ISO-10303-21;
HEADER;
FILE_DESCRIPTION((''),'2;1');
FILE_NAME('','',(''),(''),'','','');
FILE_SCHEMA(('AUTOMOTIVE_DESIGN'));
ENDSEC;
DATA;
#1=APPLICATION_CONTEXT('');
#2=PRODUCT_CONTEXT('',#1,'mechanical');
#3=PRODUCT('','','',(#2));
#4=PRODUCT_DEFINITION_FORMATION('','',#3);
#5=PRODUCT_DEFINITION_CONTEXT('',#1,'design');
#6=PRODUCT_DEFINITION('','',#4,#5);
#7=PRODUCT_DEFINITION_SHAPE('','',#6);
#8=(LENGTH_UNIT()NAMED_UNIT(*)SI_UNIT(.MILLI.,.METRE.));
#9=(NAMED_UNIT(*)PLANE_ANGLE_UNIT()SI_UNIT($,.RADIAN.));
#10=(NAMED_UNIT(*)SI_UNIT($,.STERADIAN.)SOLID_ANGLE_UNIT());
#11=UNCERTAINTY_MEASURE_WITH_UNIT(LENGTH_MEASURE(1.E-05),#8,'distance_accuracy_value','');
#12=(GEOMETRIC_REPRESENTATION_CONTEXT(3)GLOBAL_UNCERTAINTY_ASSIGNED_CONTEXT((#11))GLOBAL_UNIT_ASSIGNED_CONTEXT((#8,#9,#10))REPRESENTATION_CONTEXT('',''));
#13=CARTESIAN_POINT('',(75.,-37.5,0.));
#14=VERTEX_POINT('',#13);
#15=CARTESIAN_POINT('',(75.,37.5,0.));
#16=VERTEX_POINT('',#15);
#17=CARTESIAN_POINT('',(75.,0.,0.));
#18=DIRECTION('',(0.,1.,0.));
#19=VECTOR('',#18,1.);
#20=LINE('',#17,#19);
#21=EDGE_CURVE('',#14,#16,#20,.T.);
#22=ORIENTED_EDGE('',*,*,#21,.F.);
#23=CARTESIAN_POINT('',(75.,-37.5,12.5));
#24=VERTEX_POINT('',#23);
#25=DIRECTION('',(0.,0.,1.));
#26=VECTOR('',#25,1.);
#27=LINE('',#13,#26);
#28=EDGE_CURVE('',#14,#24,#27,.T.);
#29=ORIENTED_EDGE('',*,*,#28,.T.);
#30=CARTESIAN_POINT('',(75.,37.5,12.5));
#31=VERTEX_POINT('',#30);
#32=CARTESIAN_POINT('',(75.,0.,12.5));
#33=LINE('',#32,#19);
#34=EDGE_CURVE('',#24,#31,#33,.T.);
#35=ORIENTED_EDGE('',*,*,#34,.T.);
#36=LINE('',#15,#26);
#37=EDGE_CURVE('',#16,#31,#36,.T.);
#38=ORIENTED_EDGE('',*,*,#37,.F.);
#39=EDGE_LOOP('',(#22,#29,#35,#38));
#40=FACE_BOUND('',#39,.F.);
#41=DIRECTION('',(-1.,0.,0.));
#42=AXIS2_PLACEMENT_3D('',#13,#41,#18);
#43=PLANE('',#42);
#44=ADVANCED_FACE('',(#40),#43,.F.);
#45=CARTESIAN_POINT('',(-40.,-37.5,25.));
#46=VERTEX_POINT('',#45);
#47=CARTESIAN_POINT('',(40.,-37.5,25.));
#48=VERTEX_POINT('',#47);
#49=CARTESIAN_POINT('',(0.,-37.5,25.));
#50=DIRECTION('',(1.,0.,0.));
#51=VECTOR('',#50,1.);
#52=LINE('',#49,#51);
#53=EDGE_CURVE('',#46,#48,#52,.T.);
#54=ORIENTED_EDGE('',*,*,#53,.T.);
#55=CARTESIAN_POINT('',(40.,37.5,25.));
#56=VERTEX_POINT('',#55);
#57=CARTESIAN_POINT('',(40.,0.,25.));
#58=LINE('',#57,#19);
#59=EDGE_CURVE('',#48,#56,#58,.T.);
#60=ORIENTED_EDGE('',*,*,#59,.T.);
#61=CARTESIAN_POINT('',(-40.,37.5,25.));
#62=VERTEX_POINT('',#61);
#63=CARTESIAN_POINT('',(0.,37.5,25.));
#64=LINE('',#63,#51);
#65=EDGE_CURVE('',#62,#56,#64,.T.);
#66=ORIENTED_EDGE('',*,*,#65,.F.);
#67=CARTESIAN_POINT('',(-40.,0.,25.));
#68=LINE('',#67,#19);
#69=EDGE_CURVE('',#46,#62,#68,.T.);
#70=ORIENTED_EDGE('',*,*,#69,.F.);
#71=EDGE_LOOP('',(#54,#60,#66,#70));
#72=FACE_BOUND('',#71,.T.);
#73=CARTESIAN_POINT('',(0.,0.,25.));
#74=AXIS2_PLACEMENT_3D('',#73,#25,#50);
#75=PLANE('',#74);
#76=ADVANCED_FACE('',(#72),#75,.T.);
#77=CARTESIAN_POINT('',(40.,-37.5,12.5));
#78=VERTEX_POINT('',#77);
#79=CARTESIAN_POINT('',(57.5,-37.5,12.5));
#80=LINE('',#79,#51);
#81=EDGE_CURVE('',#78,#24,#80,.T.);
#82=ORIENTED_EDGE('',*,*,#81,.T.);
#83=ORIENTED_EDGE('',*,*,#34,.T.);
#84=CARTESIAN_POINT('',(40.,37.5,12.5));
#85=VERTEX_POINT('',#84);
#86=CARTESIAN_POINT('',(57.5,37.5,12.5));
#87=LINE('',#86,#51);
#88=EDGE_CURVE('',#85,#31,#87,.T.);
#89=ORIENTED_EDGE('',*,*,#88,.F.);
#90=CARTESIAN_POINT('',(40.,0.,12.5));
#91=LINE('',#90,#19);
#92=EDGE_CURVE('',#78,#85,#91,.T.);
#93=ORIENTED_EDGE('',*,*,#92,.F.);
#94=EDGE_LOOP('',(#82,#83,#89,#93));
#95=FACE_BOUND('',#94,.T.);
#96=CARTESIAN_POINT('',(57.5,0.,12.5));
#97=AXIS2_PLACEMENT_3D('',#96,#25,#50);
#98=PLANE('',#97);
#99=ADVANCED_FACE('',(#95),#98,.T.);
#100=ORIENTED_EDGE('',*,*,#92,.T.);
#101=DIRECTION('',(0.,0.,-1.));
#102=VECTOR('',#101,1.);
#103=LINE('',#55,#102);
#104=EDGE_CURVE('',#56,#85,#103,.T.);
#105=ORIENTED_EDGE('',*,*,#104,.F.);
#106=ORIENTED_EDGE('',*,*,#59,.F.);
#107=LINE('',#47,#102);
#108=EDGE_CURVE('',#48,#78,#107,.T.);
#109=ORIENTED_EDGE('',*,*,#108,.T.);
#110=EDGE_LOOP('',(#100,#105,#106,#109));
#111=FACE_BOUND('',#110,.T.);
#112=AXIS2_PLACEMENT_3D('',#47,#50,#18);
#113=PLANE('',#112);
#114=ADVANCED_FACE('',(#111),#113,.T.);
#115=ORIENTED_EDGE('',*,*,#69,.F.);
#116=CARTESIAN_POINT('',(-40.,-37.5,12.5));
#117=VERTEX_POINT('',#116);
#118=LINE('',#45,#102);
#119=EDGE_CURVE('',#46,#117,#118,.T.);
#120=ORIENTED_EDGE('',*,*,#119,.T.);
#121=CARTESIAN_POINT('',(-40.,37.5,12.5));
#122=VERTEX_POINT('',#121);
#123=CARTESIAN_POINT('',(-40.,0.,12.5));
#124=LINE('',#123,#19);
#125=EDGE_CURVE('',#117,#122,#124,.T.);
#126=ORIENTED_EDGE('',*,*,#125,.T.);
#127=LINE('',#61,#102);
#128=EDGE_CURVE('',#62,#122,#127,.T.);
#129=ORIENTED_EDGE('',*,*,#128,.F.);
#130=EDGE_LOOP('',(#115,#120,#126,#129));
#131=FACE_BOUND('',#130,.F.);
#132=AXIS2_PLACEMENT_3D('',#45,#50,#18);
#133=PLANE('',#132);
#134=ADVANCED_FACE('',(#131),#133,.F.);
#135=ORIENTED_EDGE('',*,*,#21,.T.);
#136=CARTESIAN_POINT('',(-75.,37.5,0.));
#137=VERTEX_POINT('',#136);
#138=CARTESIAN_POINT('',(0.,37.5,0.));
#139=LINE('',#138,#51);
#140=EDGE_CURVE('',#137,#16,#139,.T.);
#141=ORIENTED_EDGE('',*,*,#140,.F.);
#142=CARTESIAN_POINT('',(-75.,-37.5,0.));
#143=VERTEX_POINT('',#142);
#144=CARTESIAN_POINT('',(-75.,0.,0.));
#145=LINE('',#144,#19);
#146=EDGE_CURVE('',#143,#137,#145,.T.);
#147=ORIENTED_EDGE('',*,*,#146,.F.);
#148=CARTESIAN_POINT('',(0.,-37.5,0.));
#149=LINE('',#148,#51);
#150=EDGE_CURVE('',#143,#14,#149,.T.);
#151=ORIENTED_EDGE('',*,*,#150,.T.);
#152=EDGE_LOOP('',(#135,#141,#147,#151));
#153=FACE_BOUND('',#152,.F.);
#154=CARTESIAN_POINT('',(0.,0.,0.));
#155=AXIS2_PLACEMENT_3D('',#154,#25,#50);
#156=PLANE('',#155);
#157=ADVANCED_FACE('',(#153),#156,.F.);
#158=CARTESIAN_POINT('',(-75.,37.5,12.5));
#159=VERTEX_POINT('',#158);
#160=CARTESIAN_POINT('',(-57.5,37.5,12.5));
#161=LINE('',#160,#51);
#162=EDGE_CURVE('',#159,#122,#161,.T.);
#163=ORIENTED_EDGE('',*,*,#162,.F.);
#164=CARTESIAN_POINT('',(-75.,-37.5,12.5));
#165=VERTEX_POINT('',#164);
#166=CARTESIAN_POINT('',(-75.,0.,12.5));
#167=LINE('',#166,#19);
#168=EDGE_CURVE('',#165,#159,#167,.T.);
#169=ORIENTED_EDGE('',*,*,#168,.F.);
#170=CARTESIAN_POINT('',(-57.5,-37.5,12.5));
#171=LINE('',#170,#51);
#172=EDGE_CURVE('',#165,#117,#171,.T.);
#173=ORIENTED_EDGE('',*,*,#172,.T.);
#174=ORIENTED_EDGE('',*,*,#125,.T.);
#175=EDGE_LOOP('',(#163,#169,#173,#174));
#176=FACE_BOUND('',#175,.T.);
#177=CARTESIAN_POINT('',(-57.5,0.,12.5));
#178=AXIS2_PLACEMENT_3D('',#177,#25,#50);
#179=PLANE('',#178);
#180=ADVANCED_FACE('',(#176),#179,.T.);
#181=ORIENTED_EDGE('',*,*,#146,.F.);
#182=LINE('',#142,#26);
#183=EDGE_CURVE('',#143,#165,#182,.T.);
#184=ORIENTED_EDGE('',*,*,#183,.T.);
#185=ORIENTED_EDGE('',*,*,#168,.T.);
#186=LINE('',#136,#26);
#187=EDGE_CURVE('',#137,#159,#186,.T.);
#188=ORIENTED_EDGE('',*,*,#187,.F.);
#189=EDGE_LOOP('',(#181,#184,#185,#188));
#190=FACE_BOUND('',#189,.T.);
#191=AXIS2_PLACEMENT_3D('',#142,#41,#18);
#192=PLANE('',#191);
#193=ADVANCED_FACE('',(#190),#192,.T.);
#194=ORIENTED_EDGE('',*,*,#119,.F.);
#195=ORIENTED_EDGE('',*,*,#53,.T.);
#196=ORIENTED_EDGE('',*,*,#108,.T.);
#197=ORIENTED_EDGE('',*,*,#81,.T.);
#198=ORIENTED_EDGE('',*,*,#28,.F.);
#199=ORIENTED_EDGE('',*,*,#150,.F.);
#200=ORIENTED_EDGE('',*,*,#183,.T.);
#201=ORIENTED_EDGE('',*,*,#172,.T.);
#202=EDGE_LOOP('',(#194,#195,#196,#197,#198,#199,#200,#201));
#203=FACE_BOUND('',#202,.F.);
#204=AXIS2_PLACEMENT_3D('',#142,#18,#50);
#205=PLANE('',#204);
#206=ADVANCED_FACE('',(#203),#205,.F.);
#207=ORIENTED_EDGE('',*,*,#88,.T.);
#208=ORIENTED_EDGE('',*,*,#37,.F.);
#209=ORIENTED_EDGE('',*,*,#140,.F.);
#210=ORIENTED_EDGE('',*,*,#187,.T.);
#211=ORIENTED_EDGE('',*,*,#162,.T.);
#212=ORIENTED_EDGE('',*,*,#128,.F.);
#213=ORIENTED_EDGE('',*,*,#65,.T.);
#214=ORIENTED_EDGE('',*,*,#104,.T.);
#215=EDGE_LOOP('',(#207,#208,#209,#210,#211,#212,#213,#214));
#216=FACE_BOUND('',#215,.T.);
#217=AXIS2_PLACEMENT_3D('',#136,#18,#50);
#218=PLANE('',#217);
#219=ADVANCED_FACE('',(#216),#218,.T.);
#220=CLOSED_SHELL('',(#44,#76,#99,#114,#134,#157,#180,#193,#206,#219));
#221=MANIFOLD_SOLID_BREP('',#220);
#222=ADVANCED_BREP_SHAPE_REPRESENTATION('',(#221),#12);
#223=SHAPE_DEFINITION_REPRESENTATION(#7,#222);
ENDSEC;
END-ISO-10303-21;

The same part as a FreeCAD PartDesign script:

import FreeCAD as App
import Part
import Sketcher

V = App.Vector
Q = App.Units.Quantity


def add_polygon(sketch, points):
    """Adds a closed chain of lines whose ends are joined by coincident constraints."""
    first, n = sketch.GeometryCount, len(points)
    for a, b in zip(points, points[1:] + points[:1]):
        sketch.addGeometry(Part.LineSegment(App.Vector(*a, 0), App.Vector(*b, 0)), False)
    for i in range(n):
        sketch.addConstraint(Sketcher.Constraint("Coincident", first + i, 2, first + (i + 1) % n, 1))

doc = App.newDocument("Part")
body = doc.addObject("PartDesign::Body", "Body")

sketch1 = body.newObject("Sketcher::SketchObject", "Sketch")
sketch1.AttachmentSupport = (doc.getObject("XY_Plane"), [""])
sketch1.MapMode = "FlatFace"
add_polygon(sketch1, [(-75, 37.5), (-75, -37.5), (75, -37.5), (75, 37.5)])
sketch1.addConstraint([
    Sketcher.Constraint("Vertical", 0),
    Sketcher.Constraint("Horizontal", 1),
    Sketcher.Constraint("Vertical", 2),
    Sketcher.Constraint("Horizontal", 3),
    Sketcher.Constraint("Symmetric", 0, 2, 2, 2, -1, 1),
    Sketcher.Constraint("DistanceX", 1, 1, 1, 2, Q("150 mm")),
    Sketcher.Constraint("DistanceY", 0, 2, 0, 1, Q("75 mm")),
])
pad1 = body.newObject("PartDesign::Pad", "Pad")
pad1.Profile = sketch1
pad1.Length = 25

sketch2 = body.newObject("Sketcher::SketchObject", "Sketch001")
sketch2.AttachmentSupport = (doc.getObject("XY_Plane"), [""])
sketch2.MapMode = "FlatFace"
sketch2.AttachmentOffset = App.Placement(V(0, 0, 25), App.Rotation())
add_polygon(sketch2, [(-75, 37.5), (-75, -37.5), (-40, -37.5), (-40, 37.5)])
add_polygon(sketch2, [(40, 37.5), (40, -37.5), (75, -37.5), (75, 37.5)])
sketch2.addConstraint([
    Sketcher.Constraint("Vertical", 0),
    Sketcher.Constraint("Horizontal", 1),
    Sketcher.Constraint("Vertical", 2),
    Sketcher.Constraint("Horizontal", 3),
    Sketcher.Constraint("Vertical", 4),
    Sketcher.Constraint("Horizontal", 5),
    Sketcher.Constraint("Vertical", 6),
    Sketcher.Constraint("Horizontal", 7),
    Sketcher.Constraint("Symmetric", 2, 2, 4, 2, -1, 1),
    Sketcher.Constraint("Symmetric", 0, 2, 6, 2, -1, 1),
    Sketcher.Constraint("Horizontal", 1, 2, 4, 2),
    Sketcher.Constraint("DistanceX", 1, 1, 1, 2, Q("35 mm")),
    Sketcher.Constraint("DistanceY", 0, 2, 0, 1, Q("75 mm")),
    Sketcher.Constraint("DistanceX", 0, 2, -1, 1, Q("75 mm")),
])
pocket1 = body.newObject("PartDesign::Pocket", "Pocket")
pocket1.Profile = sketch2
pocket1.Length = 12.5

doc.recompute()
